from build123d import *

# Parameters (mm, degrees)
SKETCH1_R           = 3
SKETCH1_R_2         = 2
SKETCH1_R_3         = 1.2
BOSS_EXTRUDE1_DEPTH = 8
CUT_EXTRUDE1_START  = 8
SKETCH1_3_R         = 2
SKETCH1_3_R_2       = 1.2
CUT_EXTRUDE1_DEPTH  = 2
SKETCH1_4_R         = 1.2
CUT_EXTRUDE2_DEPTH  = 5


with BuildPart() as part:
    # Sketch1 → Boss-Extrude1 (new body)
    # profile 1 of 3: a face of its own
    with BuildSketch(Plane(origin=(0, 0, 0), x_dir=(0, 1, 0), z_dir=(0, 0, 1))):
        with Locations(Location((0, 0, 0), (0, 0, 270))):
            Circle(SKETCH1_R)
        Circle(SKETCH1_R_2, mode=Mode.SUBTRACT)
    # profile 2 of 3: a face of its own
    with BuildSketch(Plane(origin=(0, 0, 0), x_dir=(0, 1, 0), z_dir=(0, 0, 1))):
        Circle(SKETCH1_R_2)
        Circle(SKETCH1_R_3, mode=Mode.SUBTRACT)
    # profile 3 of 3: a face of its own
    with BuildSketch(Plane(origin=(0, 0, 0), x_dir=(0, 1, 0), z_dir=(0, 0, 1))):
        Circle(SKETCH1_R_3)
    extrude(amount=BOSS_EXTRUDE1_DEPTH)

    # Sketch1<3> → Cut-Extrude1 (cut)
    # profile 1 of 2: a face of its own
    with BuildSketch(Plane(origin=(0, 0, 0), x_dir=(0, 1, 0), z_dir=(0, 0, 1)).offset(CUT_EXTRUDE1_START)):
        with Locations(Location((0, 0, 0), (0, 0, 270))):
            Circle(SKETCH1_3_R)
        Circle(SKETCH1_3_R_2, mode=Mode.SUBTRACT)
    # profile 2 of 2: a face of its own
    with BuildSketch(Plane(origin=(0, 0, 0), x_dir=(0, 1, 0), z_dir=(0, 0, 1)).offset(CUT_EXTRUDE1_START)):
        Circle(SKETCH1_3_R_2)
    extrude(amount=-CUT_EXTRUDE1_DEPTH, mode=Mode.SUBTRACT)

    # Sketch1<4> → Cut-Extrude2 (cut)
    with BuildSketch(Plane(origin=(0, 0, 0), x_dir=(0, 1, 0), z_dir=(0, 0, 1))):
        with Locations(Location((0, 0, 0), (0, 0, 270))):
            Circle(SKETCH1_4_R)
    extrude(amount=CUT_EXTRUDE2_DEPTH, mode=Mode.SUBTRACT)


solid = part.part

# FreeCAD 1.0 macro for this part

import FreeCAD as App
import Part
import Sketcher
Q = App.Units.Quantity

doc = App.newDocument("Part")
body = doc.addObject("PartDesign::Body", "Body")

# Sketch on XY plane
sketch1 = body.newObject("Sketcher::SketchObject", "Sketch")
sketch1.AttachmentSupport = (doc.getObject("XY_Plane"), [""])
sketch1.MapMode = "FlatFace"
sketch1.addGeometry(Part.Circle(App.Vector(0, 0, 0), App.Vector(0, 0, 1), 3), False)
sketch1.addConstraint([
    Sketcher.Constraint("Coincident", 0, 3, -1, 1),
    Sketcher.Constraint("Diameter", 0, Q("6 mm")),
])
pad1 = body.newObject("PartDesign::Pad", "Pad")
pad1.Profile = sketch1
pad1.Length = 8

# Sketch on XY plane
sketch2 = body.newObject("Sketcher::SketchObject", "Sketch001")
sketch2.AttachmentSupport = (doc.getObject("XY_Plane"), [""])
sketch2.MapMode = "FlatFace"
sketch2.AttachmentOffset = App.Placement(App.Vector(0, 0, 8), App.Rotation())
sketch2.addGeometry(Part.Circle(App.Vector(0, 0, 0), App.Vector(0, 0, 1), 2), False)
sketch2.addConstraint([
    Sketcher.Constraint("Coincident", 0, 3, -1, 1),
    Sketcher.Constraint("Diameter", 0, Q("4 mm")),
])
pocket1 = body.newObject("PartDesign::Pocket", "Pocket")
pocket1.Profile = sketch2
pocket1.Length = 2

# Sketch on XY plane
sketch3 = body.newObject("Sketcher::SketchObject", "Sketch002")
sketch3.AttachmentSupport = (doc.getObject("XY_Plane"), [""])
sketch3.MapMode = "FlatFace"
sketch3.addGeometry(Part.Circle(App.Vector(0, 0, 0), App.Vector(0, 0, 1), 1.2), False)
sketch3.addConstraint([
    Sketcher.Constraint("Coincident", 0, 3, -1, 1),
    Sketcher.Constraint("Diameter", 0, Q("2.4 mm")),
])
pocket2 = body.newObject("PartDesign::Pocket", "Pocket001")
pocket2.Profile = sketch3
pocket2.Length = 5
pocket2.Reversed = True

doc.recompute()
